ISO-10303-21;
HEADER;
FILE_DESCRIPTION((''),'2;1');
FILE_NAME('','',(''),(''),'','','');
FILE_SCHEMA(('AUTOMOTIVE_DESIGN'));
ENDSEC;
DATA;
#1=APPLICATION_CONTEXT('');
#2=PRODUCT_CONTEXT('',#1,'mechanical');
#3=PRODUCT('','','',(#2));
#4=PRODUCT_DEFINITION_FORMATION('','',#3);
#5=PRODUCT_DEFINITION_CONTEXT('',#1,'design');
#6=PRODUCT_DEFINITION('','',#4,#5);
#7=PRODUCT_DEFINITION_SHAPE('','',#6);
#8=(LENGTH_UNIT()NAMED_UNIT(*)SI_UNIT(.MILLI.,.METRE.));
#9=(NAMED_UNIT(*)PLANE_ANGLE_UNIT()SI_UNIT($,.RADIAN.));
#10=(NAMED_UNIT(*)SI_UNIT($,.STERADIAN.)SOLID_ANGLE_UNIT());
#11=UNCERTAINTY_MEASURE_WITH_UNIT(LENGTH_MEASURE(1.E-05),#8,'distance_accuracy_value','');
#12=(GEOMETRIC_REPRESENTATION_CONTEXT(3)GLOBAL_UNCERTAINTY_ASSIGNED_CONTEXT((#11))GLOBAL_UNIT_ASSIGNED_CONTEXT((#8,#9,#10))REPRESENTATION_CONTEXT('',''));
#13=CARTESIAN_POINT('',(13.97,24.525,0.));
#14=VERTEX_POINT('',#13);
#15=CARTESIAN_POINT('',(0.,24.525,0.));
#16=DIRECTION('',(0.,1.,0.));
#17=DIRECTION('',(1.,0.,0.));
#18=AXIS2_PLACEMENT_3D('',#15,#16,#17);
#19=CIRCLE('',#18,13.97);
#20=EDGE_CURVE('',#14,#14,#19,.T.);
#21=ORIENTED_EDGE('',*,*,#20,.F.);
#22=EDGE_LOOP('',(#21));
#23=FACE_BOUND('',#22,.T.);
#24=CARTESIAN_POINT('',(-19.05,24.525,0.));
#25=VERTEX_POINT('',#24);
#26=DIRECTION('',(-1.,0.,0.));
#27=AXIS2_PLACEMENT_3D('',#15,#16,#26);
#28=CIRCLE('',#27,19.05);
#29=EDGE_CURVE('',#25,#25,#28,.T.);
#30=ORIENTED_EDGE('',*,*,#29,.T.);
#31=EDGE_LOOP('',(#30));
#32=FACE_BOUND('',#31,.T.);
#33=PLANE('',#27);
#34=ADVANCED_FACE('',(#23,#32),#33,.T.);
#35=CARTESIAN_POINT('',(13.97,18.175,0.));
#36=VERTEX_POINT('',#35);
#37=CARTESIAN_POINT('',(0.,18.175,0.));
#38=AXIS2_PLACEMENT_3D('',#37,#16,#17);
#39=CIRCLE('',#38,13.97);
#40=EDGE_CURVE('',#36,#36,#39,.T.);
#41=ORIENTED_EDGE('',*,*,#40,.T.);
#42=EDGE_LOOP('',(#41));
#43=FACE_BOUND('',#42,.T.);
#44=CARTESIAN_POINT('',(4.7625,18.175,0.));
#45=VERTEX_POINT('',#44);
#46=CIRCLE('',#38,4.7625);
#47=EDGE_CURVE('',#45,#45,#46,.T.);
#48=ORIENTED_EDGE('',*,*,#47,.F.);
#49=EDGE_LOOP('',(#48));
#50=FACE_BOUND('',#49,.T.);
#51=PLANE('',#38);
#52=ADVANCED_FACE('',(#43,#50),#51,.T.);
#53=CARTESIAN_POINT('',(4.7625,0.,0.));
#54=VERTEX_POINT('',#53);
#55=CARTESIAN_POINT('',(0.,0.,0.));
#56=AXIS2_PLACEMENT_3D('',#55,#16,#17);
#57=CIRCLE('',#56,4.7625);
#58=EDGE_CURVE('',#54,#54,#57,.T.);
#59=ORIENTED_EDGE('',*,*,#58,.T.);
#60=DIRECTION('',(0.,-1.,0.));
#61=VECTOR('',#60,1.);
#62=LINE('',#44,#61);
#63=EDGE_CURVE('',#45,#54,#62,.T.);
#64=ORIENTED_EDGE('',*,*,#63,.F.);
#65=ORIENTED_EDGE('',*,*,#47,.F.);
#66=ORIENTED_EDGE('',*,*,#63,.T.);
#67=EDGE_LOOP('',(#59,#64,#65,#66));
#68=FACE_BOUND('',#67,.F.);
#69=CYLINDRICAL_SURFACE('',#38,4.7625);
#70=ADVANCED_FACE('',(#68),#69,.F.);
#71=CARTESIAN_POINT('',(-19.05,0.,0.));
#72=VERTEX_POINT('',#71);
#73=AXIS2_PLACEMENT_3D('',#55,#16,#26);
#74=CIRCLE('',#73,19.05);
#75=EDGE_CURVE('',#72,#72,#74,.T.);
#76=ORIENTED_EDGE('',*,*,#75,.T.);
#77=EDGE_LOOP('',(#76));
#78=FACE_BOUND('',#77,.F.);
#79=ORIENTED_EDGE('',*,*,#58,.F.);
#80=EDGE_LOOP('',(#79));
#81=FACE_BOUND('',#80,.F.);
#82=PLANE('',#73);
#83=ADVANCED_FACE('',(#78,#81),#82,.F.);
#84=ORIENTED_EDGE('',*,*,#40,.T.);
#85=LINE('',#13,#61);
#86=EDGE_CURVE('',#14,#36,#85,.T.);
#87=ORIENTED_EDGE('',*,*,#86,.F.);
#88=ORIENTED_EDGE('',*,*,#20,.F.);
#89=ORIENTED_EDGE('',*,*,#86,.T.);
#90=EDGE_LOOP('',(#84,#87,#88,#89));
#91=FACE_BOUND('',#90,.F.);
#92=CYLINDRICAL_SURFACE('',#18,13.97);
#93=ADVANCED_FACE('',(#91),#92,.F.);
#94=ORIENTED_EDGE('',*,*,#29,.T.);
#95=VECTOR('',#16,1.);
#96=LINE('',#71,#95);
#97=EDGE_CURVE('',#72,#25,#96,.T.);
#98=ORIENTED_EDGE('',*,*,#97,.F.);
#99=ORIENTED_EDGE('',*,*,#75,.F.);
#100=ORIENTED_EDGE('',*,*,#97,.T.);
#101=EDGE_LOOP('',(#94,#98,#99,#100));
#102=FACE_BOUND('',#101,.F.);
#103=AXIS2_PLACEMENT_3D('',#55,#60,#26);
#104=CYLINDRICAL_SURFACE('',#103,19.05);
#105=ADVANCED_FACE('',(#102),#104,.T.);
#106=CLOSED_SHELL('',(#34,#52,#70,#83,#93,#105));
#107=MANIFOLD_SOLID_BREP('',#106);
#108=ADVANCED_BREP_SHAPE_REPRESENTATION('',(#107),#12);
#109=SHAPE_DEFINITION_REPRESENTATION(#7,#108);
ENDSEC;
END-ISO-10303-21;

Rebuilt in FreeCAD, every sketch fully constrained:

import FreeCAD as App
import Part
import Sketcher
from FreeCAD import Vector
Q = App.Units.Quantity

doc = App.newDocument("Part")
params = doc.addObject("Spreadsheet::Sheet", "Params")
for row, (alias, value) in enumerate([
    ("sketch1_diameter", "1.5 in"),
    ("pad1_length", "24.525 mm"),
    ("sketch2_diameter", "1.1 in"),
    ("pocket1_length", "0.25 in"),
    ("sketch3_diameter", "0.375 in"),
    ("pocket2_length", "0.7874016 in"),
], start=1):
    params.set(f"A{row}", alias)
    params.set(f"B{row}", "=" + value)
    params.setAlias(f"B{row}", alias)

body = doc.addObject("PartDesign::Body", "Body")

# Sketch on XZ plane
sketch1 = body.newObject("Sketcher::SketchObject", "Sketch")
sketch1.AttachmentSupport = (doc.getObject("XZ_Plane"), [""])
sketch1.MapMode = "FlatFace"
sketch1.addGeometry(Part.Circle(Vector(0, 0, 0), Vector(0, 0, 1), 19), False)
sketch1.addConstraint(Sketcher.Constraint("Coincident", 0, 3, -1, 1))
sketch1.addConstraint(Sketcher.Constraint("Diameter", 0, Q("1.5 in")))
sketch1.setExpression("Constraints[1]", "Params.sketch1_diameter")
pad1 = body.newObject("PartDesign::Pad", "Pad")
pad1.Profile = sketch1
pad1.setExpression("Length", "Params.pad1_length")
pad1.Reversed = True

# Sketch on XZ plane
sketch2 = body.newObject("Sketcher::SketchObject", "Sketch001")
sketch2.AttachmentSupport = (doc.getObject("XZ_Plane"), [""])
sketch2.MapMode = "FlatFace"
sketch2.AttachmentOffset = App.Placement(Vector(0, 0, -24.525), App.Rotation())
sketch2.addGeometry(Part.Circle(Vector(0, 0, 0), Vector(0, 0, 1), 14), False)
sketch2.addConstraint(Sketcher.Constraint("Coincident", 0, 3, -1, 1))
sketch2.addConstraint(Sketcher.Constraint("Diameter", 0, Q("1.1 in")))
sketch2.setExpression("Constraints[1]", "Params.sketch2_diameter")
pocket1 = body.newObject("PartDesign::Pocket", "Pocket")
pocket1.Profile = sketch2
pocket1.setExpression("Length", "Params.pocket1_length")
pocket1.Reversed = True

# Sketch on XZ plane
sketch3 = body.newObject("Sketcher::SketchObject", "Sketch002")
sketch3.AttachmentSupport = (doc.getObject("XZ_Plane"), [""])
sketch3.MapMode = "FlatFace"
sketch3.AttachmentOffset = App.Placement(Vector(0, 0, -18.175), App.Rotation())
sketch3.addGeometry(Part.Circle(Vector(0, 0, 0), Vector(0, 0, 1), 4.8), False)
sketch3.addConstraint(Sketcher.Constraint("Coincident", 0, 3, -1, 1))
sketch3.addConstraint(Sketcher.Constraint("Diameter", 0, Q("0.375 in")))
sketch3.setExpression("Constraints[1]", "Params.sketch3_diameter")
pocket2 = body.newObject("PartDesign::Pocket", "Pocket001")
pocket2.Profile = sketch3
pocket2.setExpression("Length", "Params.pocket2_length")
pocket2.Reversed = True

doc.recompute()
